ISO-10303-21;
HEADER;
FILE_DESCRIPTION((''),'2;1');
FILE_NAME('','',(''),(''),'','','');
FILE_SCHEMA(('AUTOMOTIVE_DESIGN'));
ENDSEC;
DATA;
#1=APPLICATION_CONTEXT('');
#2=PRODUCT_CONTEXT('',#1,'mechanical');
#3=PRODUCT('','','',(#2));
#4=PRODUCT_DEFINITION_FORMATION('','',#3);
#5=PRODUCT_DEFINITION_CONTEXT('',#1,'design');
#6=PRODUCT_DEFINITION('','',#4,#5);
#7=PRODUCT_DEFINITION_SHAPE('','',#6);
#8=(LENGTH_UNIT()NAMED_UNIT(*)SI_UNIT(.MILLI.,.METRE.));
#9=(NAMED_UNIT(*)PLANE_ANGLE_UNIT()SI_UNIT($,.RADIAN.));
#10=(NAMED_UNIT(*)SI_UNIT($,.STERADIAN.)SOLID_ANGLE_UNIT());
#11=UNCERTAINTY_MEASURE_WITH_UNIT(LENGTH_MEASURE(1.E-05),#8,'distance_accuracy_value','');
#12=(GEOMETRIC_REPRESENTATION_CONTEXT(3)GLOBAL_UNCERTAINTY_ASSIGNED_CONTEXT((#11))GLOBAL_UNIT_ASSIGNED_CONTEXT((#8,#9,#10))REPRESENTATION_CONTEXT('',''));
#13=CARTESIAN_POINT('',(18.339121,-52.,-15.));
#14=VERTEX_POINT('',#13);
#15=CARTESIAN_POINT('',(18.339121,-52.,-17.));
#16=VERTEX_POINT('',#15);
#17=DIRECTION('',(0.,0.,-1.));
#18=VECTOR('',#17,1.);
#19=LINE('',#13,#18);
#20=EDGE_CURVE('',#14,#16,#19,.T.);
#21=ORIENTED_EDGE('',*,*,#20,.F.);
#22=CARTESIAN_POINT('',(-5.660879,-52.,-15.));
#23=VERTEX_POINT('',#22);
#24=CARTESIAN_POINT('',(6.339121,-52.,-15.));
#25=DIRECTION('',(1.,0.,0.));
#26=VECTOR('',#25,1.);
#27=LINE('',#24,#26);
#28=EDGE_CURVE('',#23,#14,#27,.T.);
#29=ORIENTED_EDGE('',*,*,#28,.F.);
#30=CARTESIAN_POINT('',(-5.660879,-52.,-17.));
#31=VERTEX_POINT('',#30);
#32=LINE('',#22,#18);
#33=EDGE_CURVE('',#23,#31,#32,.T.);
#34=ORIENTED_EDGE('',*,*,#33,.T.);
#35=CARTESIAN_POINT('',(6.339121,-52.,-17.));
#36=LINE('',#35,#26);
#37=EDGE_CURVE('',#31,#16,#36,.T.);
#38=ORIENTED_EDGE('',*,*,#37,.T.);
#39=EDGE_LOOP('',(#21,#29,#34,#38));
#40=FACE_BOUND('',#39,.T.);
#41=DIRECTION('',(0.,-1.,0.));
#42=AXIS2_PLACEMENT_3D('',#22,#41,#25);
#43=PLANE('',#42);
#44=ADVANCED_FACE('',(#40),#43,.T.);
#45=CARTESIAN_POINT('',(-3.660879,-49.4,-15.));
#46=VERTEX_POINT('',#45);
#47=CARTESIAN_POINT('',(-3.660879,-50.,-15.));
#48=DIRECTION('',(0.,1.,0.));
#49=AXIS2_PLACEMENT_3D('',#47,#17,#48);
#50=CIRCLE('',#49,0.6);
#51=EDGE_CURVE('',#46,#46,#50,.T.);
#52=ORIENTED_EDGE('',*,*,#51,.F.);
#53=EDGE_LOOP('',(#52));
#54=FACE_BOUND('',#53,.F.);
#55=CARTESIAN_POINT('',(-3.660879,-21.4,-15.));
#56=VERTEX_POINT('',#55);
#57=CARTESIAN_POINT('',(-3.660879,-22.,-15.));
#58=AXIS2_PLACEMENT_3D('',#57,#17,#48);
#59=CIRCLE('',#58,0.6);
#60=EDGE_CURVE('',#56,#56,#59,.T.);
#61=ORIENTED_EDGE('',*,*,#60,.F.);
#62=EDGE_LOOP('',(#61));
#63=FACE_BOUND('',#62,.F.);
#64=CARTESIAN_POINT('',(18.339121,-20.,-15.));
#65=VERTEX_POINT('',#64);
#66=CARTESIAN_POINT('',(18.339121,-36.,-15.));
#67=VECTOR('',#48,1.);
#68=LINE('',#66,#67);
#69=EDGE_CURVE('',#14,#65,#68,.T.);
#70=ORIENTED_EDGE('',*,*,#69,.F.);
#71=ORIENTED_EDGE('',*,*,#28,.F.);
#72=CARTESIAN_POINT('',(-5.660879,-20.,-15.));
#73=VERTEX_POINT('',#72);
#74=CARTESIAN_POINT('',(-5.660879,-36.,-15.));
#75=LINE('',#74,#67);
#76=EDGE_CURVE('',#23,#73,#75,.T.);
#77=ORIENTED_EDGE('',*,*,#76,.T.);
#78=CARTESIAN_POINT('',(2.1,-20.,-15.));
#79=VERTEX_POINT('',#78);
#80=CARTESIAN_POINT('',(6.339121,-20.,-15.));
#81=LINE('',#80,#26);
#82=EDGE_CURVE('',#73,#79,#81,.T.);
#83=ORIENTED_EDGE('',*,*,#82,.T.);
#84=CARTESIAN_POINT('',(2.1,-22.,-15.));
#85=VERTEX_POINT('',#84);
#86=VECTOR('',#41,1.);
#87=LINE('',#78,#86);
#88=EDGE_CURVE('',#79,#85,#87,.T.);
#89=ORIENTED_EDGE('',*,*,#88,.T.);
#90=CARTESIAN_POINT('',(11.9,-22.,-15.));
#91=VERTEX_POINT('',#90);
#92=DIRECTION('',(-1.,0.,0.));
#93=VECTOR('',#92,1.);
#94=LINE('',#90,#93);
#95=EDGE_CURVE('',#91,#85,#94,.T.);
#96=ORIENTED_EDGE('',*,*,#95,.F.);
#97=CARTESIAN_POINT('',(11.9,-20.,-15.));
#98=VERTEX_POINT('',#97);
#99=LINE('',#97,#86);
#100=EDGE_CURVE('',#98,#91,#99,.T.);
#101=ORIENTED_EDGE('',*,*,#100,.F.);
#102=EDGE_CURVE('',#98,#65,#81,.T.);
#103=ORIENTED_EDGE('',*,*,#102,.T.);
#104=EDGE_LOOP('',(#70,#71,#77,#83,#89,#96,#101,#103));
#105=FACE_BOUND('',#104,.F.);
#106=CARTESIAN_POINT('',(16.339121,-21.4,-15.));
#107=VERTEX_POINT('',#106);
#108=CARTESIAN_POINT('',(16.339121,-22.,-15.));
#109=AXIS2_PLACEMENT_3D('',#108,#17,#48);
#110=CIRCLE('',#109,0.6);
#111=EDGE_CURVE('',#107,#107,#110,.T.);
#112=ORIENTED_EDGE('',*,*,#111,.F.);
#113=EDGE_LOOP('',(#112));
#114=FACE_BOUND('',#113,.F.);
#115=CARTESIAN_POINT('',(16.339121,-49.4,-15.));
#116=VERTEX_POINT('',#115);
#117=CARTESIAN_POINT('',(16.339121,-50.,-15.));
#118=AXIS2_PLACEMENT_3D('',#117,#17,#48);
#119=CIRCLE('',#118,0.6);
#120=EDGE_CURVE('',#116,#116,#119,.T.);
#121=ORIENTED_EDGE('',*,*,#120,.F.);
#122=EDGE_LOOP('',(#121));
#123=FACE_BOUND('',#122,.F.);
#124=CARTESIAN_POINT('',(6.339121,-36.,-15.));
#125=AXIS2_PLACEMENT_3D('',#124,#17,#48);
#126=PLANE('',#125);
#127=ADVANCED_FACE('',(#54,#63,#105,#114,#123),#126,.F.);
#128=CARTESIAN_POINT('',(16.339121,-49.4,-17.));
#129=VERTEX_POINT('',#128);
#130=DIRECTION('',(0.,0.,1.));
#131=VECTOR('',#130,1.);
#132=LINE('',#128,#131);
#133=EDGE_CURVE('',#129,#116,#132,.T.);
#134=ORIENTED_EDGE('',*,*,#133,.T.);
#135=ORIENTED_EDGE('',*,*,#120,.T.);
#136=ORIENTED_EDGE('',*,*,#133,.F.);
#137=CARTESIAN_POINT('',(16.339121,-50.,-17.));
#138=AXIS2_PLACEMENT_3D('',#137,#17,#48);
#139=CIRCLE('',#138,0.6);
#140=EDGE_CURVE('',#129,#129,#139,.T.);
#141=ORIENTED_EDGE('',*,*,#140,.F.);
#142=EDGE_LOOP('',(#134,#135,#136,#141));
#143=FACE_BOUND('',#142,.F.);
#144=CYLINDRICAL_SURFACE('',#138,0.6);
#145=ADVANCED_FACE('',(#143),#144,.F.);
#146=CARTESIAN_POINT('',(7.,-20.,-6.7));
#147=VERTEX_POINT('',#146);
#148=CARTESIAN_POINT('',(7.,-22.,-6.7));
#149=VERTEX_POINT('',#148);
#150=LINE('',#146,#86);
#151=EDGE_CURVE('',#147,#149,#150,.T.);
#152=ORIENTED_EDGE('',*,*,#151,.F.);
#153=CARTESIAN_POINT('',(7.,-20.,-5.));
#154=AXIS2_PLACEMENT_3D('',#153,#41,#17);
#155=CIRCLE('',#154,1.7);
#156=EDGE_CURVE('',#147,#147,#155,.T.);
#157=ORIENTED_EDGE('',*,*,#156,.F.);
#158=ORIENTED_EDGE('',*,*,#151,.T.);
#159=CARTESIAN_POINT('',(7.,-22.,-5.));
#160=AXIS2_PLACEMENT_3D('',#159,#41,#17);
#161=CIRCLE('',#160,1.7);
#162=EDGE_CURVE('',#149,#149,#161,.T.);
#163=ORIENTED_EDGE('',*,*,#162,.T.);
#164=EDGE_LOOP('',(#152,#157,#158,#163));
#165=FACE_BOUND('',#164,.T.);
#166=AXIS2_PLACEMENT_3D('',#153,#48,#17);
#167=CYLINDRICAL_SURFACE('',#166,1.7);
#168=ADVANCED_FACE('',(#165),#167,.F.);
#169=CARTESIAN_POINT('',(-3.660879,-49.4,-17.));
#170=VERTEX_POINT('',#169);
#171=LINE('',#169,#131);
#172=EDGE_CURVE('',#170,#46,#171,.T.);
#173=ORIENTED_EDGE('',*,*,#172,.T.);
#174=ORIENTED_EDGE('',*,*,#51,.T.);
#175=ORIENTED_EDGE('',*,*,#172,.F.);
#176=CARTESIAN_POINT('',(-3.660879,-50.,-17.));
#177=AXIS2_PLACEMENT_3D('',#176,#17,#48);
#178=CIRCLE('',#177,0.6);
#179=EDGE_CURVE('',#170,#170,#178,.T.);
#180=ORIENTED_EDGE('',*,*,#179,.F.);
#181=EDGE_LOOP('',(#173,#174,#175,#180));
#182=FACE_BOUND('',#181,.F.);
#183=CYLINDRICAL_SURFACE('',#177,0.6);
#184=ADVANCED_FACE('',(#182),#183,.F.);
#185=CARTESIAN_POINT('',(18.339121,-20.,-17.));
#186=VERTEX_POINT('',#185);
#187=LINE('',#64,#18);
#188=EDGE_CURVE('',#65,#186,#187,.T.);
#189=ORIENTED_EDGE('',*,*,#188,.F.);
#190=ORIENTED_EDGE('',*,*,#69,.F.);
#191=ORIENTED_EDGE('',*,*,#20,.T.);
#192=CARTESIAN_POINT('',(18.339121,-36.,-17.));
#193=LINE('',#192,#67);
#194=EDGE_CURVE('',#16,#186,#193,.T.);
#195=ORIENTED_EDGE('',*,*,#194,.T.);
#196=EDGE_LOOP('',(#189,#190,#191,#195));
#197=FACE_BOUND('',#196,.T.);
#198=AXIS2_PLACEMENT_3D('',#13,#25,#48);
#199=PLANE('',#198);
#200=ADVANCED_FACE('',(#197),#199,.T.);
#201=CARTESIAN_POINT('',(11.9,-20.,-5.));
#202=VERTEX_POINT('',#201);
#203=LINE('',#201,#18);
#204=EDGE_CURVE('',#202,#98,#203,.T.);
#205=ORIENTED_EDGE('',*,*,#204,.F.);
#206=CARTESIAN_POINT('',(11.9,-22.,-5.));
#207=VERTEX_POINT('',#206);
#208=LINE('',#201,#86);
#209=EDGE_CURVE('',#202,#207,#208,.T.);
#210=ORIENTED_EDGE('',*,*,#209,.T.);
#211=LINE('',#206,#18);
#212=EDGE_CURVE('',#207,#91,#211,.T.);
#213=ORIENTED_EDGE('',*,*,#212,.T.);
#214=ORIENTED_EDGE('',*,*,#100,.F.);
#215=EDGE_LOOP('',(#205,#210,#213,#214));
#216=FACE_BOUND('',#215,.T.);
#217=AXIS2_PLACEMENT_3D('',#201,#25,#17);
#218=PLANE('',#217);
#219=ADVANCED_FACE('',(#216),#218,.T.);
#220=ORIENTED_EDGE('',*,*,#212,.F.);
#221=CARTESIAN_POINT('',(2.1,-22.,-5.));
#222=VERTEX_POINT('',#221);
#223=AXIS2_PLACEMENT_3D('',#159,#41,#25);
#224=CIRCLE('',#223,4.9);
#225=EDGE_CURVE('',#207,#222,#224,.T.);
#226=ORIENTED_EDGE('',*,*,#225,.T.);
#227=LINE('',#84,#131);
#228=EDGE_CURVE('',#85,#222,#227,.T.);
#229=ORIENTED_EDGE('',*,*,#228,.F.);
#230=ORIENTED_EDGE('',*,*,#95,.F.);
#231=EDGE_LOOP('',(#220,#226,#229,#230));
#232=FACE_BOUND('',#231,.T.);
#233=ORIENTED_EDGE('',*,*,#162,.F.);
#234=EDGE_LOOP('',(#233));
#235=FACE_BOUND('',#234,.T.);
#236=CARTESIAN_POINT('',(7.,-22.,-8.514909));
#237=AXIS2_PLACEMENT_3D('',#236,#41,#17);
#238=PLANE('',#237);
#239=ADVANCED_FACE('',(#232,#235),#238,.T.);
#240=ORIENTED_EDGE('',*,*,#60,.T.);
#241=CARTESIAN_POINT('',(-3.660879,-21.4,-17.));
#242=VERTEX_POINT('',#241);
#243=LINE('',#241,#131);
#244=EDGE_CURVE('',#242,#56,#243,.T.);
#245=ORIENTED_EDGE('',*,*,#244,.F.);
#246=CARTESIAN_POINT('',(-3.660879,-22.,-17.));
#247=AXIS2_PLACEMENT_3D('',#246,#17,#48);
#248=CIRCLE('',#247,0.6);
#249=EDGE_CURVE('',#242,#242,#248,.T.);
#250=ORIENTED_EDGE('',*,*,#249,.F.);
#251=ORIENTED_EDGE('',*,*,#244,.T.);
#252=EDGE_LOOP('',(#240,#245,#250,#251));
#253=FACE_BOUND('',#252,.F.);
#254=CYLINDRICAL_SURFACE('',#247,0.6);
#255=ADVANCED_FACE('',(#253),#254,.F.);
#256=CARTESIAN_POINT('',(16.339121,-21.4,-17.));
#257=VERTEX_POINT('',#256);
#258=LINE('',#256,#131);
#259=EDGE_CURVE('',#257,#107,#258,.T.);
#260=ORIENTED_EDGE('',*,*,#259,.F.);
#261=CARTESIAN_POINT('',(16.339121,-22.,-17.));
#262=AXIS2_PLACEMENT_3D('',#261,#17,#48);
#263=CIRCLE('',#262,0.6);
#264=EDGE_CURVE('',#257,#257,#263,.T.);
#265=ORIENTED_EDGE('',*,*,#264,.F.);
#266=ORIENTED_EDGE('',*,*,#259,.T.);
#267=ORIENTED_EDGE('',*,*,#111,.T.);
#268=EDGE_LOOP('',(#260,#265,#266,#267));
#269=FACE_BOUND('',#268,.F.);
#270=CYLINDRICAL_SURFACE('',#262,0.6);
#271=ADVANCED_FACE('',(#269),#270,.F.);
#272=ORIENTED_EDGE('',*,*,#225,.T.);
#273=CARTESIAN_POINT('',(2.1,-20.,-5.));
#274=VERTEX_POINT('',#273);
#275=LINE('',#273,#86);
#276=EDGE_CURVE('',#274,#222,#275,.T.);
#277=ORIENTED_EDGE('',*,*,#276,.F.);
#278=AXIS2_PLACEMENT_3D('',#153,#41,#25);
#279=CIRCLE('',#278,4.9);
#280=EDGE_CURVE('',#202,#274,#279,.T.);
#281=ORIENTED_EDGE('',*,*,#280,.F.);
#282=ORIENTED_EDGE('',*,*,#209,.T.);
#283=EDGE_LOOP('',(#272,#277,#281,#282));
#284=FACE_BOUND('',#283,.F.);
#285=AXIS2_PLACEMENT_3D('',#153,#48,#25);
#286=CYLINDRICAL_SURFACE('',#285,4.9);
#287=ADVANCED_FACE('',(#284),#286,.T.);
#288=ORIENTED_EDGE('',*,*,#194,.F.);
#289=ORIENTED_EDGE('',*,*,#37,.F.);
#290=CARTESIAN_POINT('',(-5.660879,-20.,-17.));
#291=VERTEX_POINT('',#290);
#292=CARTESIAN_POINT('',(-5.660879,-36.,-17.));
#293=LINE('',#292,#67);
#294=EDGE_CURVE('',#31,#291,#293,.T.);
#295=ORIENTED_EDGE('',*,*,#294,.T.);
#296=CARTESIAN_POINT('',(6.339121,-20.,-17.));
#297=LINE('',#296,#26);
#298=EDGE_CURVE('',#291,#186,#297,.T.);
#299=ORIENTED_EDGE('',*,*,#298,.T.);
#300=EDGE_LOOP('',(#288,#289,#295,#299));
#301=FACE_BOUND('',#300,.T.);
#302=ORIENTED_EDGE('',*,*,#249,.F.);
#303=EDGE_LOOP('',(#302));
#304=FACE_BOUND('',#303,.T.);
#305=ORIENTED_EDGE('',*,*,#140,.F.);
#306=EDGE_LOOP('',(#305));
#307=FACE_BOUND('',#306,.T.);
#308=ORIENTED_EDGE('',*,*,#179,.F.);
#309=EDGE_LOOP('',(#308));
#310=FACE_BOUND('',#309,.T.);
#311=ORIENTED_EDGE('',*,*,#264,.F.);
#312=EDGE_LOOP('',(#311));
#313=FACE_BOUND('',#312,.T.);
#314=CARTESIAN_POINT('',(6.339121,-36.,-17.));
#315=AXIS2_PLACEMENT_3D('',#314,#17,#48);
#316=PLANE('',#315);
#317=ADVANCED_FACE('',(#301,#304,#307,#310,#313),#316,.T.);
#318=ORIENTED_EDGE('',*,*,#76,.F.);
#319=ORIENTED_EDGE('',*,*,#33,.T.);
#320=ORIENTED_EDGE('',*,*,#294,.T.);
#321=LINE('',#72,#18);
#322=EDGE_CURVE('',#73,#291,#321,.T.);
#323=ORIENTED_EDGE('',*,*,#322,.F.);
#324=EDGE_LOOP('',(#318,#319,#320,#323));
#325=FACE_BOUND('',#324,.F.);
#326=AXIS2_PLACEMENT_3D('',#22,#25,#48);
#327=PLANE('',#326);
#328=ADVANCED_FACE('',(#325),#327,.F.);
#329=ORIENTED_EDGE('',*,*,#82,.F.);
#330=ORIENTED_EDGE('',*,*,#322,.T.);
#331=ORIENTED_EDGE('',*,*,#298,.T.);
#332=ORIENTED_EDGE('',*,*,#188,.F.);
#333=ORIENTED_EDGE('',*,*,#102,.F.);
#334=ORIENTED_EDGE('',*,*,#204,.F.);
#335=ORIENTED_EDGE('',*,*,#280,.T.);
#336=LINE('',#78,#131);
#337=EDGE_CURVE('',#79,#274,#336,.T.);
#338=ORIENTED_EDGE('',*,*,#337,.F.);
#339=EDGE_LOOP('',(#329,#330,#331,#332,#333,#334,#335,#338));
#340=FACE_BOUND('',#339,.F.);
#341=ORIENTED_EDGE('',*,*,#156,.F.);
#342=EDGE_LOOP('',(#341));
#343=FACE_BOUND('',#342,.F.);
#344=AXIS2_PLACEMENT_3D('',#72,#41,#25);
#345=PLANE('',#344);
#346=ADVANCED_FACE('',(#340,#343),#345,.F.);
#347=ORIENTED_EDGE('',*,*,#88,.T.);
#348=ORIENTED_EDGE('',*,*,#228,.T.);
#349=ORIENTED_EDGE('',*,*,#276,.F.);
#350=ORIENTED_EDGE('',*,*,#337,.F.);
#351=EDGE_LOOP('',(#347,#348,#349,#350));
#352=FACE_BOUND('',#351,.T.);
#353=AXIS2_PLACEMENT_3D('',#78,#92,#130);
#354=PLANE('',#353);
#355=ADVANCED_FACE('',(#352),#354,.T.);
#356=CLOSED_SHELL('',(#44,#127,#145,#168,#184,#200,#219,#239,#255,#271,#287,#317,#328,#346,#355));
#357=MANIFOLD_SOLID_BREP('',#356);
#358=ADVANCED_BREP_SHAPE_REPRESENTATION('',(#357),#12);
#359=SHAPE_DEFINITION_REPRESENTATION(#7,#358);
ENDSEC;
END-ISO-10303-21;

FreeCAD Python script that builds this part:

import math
import FreeCAD as App
import Part
import Sketcher
from FreeCAD import Vector
Q = App.Units.Quantity

doc = App.newDocument("Part")
params = doc.addObject("Spreadsheet::Sheet", "Params")
for row, (alias, value) in enumerate([
    ("sketch1_diameter", "3.4 mm"),
    ("sketch1_radius", "4.9 mm"),
    ("sketch1_height", "10 mm"),
    ("pad1_length", "2 mm"),
    ("sketch2_width", "24 mm"),
    ("sketch2_height", "32 mm"),
    ("pad2_length", "2 mm"),
    ("sketch3_diameter", "1.2 mm"),
    ("pocket1_length", "25 mm"),
], start=1):
    params.set(f"A{row}", alias)
    params.set(f"B{row}", "=" + value)
    params.setAlias(f"B{row}", alias)

body = doc.addObject("PartDesign::Body", "Body")

# Sketch on XZ plane
sketch1 = body.newObject("Sketcher::SketchObject", "Sketch")
sketch1.AttachmentSupport = (doc.getObject("XZ_Plane"), [""])
sketch1.MapMode = "FlatFace"
sketch1.AttachmentOffset = App.Placement(Vector(0, 0, 20), App.Rotation())
sketch1.addGeometry([
    Part.ArcOfCircle(Part.Circle(Vector(7, -5, 0), Vector(0, 0, 1), 4.9), math.radians(0), math.radians(180)),  # 0
    Part.LineSegment(Vector(2.1, -5, 0), Vector(2.1, -15, 0)),  # 1
    Part.LineSegment(Vector(2.1, -15, 0), Vector(11.9, -15, 0)),  # 2
    Part.LineSegment(Vector(11.9, -15, 0), Vector(11.9, -5, 0)),  # 3
    Part.Circle(Vector(7, -5, 0), Vector(0, 0, 1), 1.7),  # 4
], False)
sketch1.addConstraint([
    Sketcher.Constraint("Tangent", 0, 2, 1, 1),
    Sketcher.Constraint("Coincident", 1, 2, 2, 1),
    Sketcher.Constraint("Coincident", 2, 2, 3, 1),
    Sketcher.Constraint("Tangent", 3, 2, 0, 1),
    Sketcher.Constraint("Vertical", 1),
    Sketcher.Constraint("Horizontal", 2),
    Sketcher.Constraint("Vertical", 3),
    Sketcher.Constraint("Coincident", 4, 3, 0, 3),
    Sketcher.Constraint("Diameter", 4, Q("3.4 mm")),
    Sketcher.Constraint("Radius", 0, Q("4.9 mm")),
    Sketcher.Constraint("DistanceY", 1, 2, 1, 1, Q("10 mm")),
    Sketcher.Constraint("DistanceX", -1, 1, 0, 3, Q("7 mm")),
    Sketcher.Constraint("DistanceY", 0, 3, -1, 1, Q("5 mm")),
])
sketch1.setExpression("Constraints[8]", "Params.sketch1_diameter")
sketch1.setExpression("Constraints[9]", "Params.sketch1_radius")
sketch1.setExpression("Constraints[10]", "Params.sketch1_height")
pad1 = body.newObject("PartDesign::Pad", "Pad")
pad1.Profile = sketch1
pad1.setExpression("Length", "Params.pad1_length")

# Sketch on XY plane
sketch2 = body.newObject("Sketcher::SketchObject", "Sketch001")
sketch2.AttachmentSupport = (doc.getObject("XY_Plane"), [""])
sketch2.MapMode = "FlatFace"
sketch2.AttachmentOffset = App.Placement(Vector(0, 0, -15), App.Rotation())
sketch2.addGeometry([
    Part.LineSegment(Vector(18.339121, -52, 0), Vector(-5.660879, -52, 0)),
    Part.LineSegment(Vector(-5.660879, -52, 0), Vector(-5.660879, -20, 0)),
    Part.LineSegment(Vector(-5.660879, -20, 0), Vector(18.339121, -20, 0)),
    Part.LineSegment(Vector(18.339121, -20, 0), Vector(18.339121, -52, 0)),
], False)
sketch2.addConstraint([
    Sketcher.Constraint("Coincident", 0, 2, 1, 1),
    Sketcher.Constraint("Coincident", 1, 2, 2, 1),
    Sketcher.Constraint("Coincident", 2, 2, 3, 1),
    Sketcher.Constraint("Coincident", 3, 2, 0, 1),
    Sketcher.Constraint("Horizontal", 0),
    Sketcher.Constraint("Vertical", 1),
    Sketcher.Constraint("Horizontal", 2),
    Sketcher.Constraint("Vertical", 3),
    Sketcher.Constraint("DistanceX", 0, 2, 0, 1, Q("24 mm")),
    Sketcher.Constraint("DistanceY", 1, 1, 1, 2, Q("32 mm")),
    Sketcher.Constraint("DistanceY", 0, 2, -1, 1, Q("52 mm")),
    Sketcher.Constraint("DistanceX", 0, 2, -1, 1, Q("5.660879 mm")),
])
sketch2.setExpression("Constraints[8]", "Params.sketch2_width")
sketch2.setExpression("Constraints[9]", "Params.sketch2_height")
pad2 = body.newObject("PartDesign::Pad", "Pad001")
pad2.Profile = sketch2
pad2.setExpression("Length", "Params.pad2_length")
pad2.Reversed = True

# Sketch on XY plane
sketch3 = body.newObject("Sketcher::SketchObject", "Sketch002")
sketch3.AttachmentSupport = (doc.getObject("XY_Plane"), [""])
sketch3.MapMode = "FlatFace"
sketch3.AttachmentOffset = App.Placement(Vector(0, 0, -17), App.Rotation())
sketch3.addGeometry([
    Part.Circle(Vector(16.339121, -50, 0), Vector(0, 0, 1), 0.6),
    Part.Circle(Vector(16.339121, -22, 0), Vector(0, 0, 1), 0.6),
    Part.Circle(Vector(-3.660879, -22, 0), Vector(0, 0, 1), 0.6),
    Part.Circle(Vector(-3.660879, -50, 0), Vector(0, 0, 1), 0.6),
], False)
sketch3.addConstraint([
    Sketcher.Constraint("Equal", 0, 1),
    Sketcher.Constraint("Equal", 1, 2),
    Sketcher.Constraint("Equal", 2, 3),
    Sketcher.Constraint("Horizontal", 1, 3, 2, 3),
    Sketcher.Constraint("Horizontal", 0, 3, 3, 3),
    Sketcher.Constraint("Vertical", 0, 3, 1, 3),
    Sketcher.Constraint("Vertical", 2, 3, 3, 3),
    Sketcher.Constraint("Diameter", 0, Q("1.2 mm")),
    Sketcher.Constraint("DistanceY", 0, 3, -1, 1, Q("50 mm")),
    Sketcher.Constraint("DistanceY", 1, 3, -1, 1, Q("22 mm")),
    Sketcher.Constraint("DistanceX", 2, 3, 1, 3, Q("20 mm")),
    Sketcher.Constraint("DistanceX", -1, 1, 0, 3, Q("16.339121 mm")),
])
sketch3.setExpression("Constraints[7]", "Params.sketch3_diameter")
pocket1 = body.newObject("PartDesign::Pocket", "Pocket")
pocket1.Profile = sketch3
pocket1.setExpression("Length", "Params.pocket1_length")
pocket1.Reversed = True

doc.recompute()
